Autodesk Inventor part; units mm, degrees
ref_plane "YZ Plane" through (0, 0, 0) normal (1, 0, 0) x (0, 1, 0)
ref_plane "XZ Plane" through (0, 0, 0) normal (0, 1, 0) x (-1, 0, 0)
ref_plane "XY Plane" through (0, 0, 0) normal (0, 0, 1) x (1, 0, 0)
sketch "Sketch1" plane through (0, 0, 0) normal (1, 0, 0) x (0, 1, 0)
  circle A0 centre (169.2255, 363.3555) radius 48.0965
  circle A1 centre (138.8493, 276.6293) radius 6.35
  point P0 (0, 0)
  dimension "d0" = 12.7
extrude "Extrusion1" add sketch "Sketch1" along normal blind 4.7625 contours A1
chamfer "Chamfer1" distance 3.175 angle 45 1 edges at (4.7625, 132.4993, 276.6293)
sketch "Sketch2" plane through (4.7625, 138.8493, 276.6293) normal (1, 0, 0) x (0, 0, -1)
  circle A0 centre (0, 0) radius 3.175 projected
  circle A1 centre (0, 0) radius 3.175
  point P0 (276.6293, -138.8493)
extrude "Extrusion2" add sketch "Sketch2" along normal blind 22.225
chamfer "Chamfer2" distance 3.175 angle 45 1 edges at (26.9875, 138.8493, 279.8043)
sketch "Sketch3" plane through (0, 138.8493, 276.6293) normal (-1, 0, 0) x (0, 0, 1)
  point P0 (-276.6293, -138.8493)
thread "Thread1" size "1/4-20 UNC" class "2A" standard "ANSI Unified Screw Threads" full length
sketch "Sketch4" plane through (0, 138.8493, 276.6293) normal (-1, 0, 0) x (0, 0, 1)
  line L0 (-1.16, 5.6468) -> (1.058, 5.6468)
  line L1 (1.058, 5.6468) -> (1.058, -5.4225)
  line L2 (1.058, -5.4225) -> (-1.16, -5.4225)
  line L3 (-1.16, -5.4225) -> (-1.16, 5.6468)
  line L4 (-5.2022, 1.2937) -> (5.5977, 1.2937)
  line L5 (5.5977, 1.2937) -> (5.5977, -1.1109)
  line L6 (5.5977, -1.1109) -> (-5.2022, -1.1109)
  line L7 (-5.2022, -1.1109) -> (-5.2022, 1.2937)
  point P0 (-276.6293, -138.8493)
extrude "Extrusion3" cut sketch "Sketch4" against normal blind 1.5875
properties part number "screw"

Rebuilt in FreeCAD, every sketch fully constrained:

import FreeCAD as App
import Part
import Sketcher

V = App.Vector
Q = App.Units.Quantity


def edges_at(feature, points):
    """Names of the edges that pass closest to the given points."""
    edges = feature.Shape.Edges
    near = lambda p: min(range(len(edges)), key=lambda i: edges[i].distToShape(Part.Vertex(*p))[0])
    return sorted({f"Edge{near(p) + 1}" for p in points})

doc = App.newDocument("Part")
params = doc.addObject("Spreadsheet::Sheet", "Params")
for row, (alias, value) in enumerate([
    ("sketch1_diameter", "0.5 in"),
    ("pad1_length", "0.1875 in"),
    ("chamfer_size", "0.125 in"),
    ("sketch2_diameter", "0.25 in"),
    ("pad2_length", "0.875 in"),
    ("chamfer2_size", "0.125 in"),
    ("pocket1_length", "0.0625 in"),
], start=1):
    params.set(f"A{row}", alias)
    params.set(f"B{row}", "=" + value)
    params.setAlias(f"B{row}", alias)

body = doc.addObject("PartDesign::Body", "Body")

# Sketch on YZ plane
sketch1 = doc.addObject("Sketcher::SketchObject", "Sketch")
body.addObject(sketch1)
sketch1.AttachmentSupport = (doc.YZ_Plane, [""])
sketch1.MapMode = "FlatFace"
sketch1.addGeometry(Part.Circle(V(139, 277, 0), V(0, 0, 1), 6), False)
sketch1.addConstraint(Sketcher.Constraint("Diameter", 0, Q("0.5 in")))
sketch1.addConstraint(Sketcher.Constraint("DistanceX", -1, 1, 0, 3, Q("5.4665 in")))
sketch1.addConstraint(Sketcher.Constraint("DistanceY", -1, 1, 0, 3, 276.6293))
sketch1.setExpression("Constraints[0]", "Params.sketch1_diameter")
pad1 = doc.addObject("PartDesign::Pad", "Pad")
body.addObject(pad1)
pad1.Profile = sketch1
pad1.setExpression("Length", "Params.pad1_length")
doc.recompute()

chamfer = doc.addObject("PartDesign::Chamfer", "Chamfer")
body.addObject(chamfer)
chamfer.Base = (pad1, edges_at(pad1, [(4.763, 132.499, 276.629)]))
chamfer.setExpression("Size", "Params.chamfer_size")

# Sketch on YZ plane
sketch2 = doc.addObject("Sketcher::SketchObject", "Sketch001")
body.addObject(sketch2)
sketch2.AttachmentSupport = (doc.YZ_Plane, [""])
sketch2.MapMode = "FlatFace"
sketch2.AttachmentOffset = App.Placement(V(0, 0, 0.1875 * 25.4), App.Rotation())
sketch2.addGeometry(Part.Circle(V(138.8, 276.6, 0), V(0, 0, 1), 3.2), False)
sketch2.addConstraint(Sketcher.Constraint("Diameter", 0, Q("0.25 in")))
sketch2.addConstraint(Sketcher.Constraint("DistanceX", -1, 1, 0, 3, Q("5.4665 in")))
sketch2.addConstraint(Sketcher.Constraint("DistanceY", -1, 1, 0, 3, 276.6293))
sketch2.setExpression("Constraints[0]", "Params.sketch2_diameter")
pad2 = doc.addObject("PartDesign::Pad", "Pad001")
body.addObject(pad2)
pad2.Profile = sketch2
pad2.setExpression("Length", "Params.pad2_length")
doc.recompute()

chamfer2 = doc.addObject("PartDesign::Chamfer", "Chamfer001")
body.addObject(chamfer2)
chamfer2.Base = (pad2, edges_at(pad2, [(26.988, 138.849, 279.804)]))
chamfer2.setExpression("Size", "Params.chamfer2_size")

# Sketch on YZ plane
sketch3 = doc.addObject("Sketcher::SketchObject", "Sketch002")
body.addObject(sketch3)
sketch3.AttachmentSupport = (doc.YZ_Plane, [""])
sketch3.MapMode = "FlatFace"
sketch3.addGeometry(Part.LineSegment(V(144.5, 277.7, 0), V(144.5, 275.5, 0)), False)
sketch3.addGeometry(Part.LineSegment(V(144.5, 275.5, 0), V(140.1, 275.5, 0)), False)
sketch3.addGeometry(Part.LineSegment(V(140.1, 275.5, 0), V(140.1, 271.4, 0)), False)
sketch3.addGeometry(Part.LineSegment(V(140.1, 271.4, 0), V(137.7, 271.4, 0)), False)
sketch3.addGeometry(Part.LineSegment(V(137.7, 271.4, 0), V(137.7, 275.5, 0)), False)
sketch3.addGeometry(Part.LineSegment(V(137.7, 275.5, 0), V(133.4, 275.5, 0)), False)
sketch3.addGeometry(Part.LineSegment(V(133.4, 275.5, 0), V(133.4, 277.7, 0)), False)
sketch3.addGeometry(Part.LineSegment(V(133.4, 277.7, 0), V(137.7, 277.7, 0)), False)
sketch3.addGeometry(Part.LineSegment(V(137.7, 277.7, 0), V(137.7, 282.2, 0)), False)
sketch3.addGeometry(Part.LineSegment(V(137.7, 282.2, 0), V(140.1, 282.2, 0)), False)
sketch3.addGeometry(Part.LineSegment(V(140.1, 282.2, 0), V(140.1, 277.7, 0)), False)
sketch3.addGeometry(Part.LineSegment(V(140.1, 277.7, 0), V(144.5, 277.7, 0)), False)
sketch3.addConstraint(Sketcher.Constraint("Coincident", 0, 2, 1, 1))
sketch3.addConstraint(Sketcher.Constraint("Coincident", 1, 2, 2, 1))
sketch3.addConstraint(Sketcher.Constraint("Coincident", 2, 2, 3, 1))
sketch3.addConstraint(Sketcher.Constraint("Coincident", 3, 2, 4, 1))
sketch3.addConstraint(Sketcher.Constraint("Coincident", 4, 2, 5, 1))
sketch3.addConstraint(Sketcher.Constraint("Coincident", 5, 2, 6, 1))
sketch3.addConstraint(Sketcher.Constraint("Coincident", 6, 2, 7, 1))
sketch3.addConstraint(Sketcher.Constraint("Coincident", 7, 2, 8, 1))
sketch3.addConstraint(Sketcher.Constraint("Coincident", 8, 2, 9, 1))
sketch3.addConstraint(Sketcher.Constraint("Coincident", 9, 2, 10, 1))
sketch3.addConstraint(Sketcher.Constraint("Coincident", 10, 2, 11, 1))
sketch3.addConstraint(Sketcher.Constraint("Coincident", 11, 2, 0, 1))
sketch3.addConstraint(Sketcher.Constraint("Vertical", 0))
sketch3.addConstraint(Sketcher.Constraint("Horizontal", 1))
sketch3.addConstraint(Sketcher.Constraint("Vertical", 2))
sketch3.addConstraint(Sketcher.Constraint("Horizontal", 3))
sketch3.addConstraint(Sketcher.Constraint("Vertical", 4))
sketch3.addConstraint(Sketcher.Constraint("Horizontal", 5))
sketch3.addConstraint(Sketcher.Constraint("Vertical", 6))
sketch3.addConstraint(Sketcher.Constraint("Horizontal", 7))
sketch3.addConstraint(Sketcher.Constraint("Vertical", 8))
sketch3.addConstraint(Sketcher.Constraint("Horizontal", 9))
sketch3.addConstraint(Sketcher.Constraint("Vertical", 10))
sketch3.addConstraint(Sketcher.Constraint("Horizontal", 11))
sketch3.addConstraint(Sketcher.Constraint("Horizontal", 1, 2, 4, 2))
sketch3.addConstraint(Sketcher.Constraint("Horizontal", 7, 2, 10, 2))
sketch3.addConstraint(Sketcher.Constraint("Vertical", 4, 2, 7, 2))
sketch3.addConstraint(Sketcher.Constraint("Vertical", 2, 2, 9, 2))
sketch3.addConstraint(Sketcher.Constraint("DistanceX", 1, 2, 1, 1, 4.353))
sketch3.addConstraint(Sketcher.Constraint("DistanceX", 3, 2, 3, 1, 2.4046))
sketch3.addConstraint(Sketcher.Constraint("DistanceX", 5, 2, 5, 1, 4.3116))
sketch3.addConstraint(Sketcher.Constraint("DistanceY", 0, 2, 0, 1, 2.218))
sketch3.addConstraint(Sketcher.Constraint("DistanceY", 2, 2, 2, 1, 4.0422))
sketch3.addConstraint(Sketcher.Constraint("DistanceY", 8, 1, 8, 2, 4.5397))
sketch3.addConstraint(Sketcher.Constraint("DistanceY", -1, 1, 2, 2, Q("10.6861 in")))
sketch3.addConstraint(Sketcher.Constraint("DistanceX", -1, 1, 0, 2, 144.496))
pocket1 = doc.addObject("PartDesign::Pocket", "Pocket")
body.addObject(pocket1)
pocket1.Profile = sketch3
pocket1.setExpression("Length", "Params.pocket1_length")
pocket1.Reversed = True

doc.recompute()
